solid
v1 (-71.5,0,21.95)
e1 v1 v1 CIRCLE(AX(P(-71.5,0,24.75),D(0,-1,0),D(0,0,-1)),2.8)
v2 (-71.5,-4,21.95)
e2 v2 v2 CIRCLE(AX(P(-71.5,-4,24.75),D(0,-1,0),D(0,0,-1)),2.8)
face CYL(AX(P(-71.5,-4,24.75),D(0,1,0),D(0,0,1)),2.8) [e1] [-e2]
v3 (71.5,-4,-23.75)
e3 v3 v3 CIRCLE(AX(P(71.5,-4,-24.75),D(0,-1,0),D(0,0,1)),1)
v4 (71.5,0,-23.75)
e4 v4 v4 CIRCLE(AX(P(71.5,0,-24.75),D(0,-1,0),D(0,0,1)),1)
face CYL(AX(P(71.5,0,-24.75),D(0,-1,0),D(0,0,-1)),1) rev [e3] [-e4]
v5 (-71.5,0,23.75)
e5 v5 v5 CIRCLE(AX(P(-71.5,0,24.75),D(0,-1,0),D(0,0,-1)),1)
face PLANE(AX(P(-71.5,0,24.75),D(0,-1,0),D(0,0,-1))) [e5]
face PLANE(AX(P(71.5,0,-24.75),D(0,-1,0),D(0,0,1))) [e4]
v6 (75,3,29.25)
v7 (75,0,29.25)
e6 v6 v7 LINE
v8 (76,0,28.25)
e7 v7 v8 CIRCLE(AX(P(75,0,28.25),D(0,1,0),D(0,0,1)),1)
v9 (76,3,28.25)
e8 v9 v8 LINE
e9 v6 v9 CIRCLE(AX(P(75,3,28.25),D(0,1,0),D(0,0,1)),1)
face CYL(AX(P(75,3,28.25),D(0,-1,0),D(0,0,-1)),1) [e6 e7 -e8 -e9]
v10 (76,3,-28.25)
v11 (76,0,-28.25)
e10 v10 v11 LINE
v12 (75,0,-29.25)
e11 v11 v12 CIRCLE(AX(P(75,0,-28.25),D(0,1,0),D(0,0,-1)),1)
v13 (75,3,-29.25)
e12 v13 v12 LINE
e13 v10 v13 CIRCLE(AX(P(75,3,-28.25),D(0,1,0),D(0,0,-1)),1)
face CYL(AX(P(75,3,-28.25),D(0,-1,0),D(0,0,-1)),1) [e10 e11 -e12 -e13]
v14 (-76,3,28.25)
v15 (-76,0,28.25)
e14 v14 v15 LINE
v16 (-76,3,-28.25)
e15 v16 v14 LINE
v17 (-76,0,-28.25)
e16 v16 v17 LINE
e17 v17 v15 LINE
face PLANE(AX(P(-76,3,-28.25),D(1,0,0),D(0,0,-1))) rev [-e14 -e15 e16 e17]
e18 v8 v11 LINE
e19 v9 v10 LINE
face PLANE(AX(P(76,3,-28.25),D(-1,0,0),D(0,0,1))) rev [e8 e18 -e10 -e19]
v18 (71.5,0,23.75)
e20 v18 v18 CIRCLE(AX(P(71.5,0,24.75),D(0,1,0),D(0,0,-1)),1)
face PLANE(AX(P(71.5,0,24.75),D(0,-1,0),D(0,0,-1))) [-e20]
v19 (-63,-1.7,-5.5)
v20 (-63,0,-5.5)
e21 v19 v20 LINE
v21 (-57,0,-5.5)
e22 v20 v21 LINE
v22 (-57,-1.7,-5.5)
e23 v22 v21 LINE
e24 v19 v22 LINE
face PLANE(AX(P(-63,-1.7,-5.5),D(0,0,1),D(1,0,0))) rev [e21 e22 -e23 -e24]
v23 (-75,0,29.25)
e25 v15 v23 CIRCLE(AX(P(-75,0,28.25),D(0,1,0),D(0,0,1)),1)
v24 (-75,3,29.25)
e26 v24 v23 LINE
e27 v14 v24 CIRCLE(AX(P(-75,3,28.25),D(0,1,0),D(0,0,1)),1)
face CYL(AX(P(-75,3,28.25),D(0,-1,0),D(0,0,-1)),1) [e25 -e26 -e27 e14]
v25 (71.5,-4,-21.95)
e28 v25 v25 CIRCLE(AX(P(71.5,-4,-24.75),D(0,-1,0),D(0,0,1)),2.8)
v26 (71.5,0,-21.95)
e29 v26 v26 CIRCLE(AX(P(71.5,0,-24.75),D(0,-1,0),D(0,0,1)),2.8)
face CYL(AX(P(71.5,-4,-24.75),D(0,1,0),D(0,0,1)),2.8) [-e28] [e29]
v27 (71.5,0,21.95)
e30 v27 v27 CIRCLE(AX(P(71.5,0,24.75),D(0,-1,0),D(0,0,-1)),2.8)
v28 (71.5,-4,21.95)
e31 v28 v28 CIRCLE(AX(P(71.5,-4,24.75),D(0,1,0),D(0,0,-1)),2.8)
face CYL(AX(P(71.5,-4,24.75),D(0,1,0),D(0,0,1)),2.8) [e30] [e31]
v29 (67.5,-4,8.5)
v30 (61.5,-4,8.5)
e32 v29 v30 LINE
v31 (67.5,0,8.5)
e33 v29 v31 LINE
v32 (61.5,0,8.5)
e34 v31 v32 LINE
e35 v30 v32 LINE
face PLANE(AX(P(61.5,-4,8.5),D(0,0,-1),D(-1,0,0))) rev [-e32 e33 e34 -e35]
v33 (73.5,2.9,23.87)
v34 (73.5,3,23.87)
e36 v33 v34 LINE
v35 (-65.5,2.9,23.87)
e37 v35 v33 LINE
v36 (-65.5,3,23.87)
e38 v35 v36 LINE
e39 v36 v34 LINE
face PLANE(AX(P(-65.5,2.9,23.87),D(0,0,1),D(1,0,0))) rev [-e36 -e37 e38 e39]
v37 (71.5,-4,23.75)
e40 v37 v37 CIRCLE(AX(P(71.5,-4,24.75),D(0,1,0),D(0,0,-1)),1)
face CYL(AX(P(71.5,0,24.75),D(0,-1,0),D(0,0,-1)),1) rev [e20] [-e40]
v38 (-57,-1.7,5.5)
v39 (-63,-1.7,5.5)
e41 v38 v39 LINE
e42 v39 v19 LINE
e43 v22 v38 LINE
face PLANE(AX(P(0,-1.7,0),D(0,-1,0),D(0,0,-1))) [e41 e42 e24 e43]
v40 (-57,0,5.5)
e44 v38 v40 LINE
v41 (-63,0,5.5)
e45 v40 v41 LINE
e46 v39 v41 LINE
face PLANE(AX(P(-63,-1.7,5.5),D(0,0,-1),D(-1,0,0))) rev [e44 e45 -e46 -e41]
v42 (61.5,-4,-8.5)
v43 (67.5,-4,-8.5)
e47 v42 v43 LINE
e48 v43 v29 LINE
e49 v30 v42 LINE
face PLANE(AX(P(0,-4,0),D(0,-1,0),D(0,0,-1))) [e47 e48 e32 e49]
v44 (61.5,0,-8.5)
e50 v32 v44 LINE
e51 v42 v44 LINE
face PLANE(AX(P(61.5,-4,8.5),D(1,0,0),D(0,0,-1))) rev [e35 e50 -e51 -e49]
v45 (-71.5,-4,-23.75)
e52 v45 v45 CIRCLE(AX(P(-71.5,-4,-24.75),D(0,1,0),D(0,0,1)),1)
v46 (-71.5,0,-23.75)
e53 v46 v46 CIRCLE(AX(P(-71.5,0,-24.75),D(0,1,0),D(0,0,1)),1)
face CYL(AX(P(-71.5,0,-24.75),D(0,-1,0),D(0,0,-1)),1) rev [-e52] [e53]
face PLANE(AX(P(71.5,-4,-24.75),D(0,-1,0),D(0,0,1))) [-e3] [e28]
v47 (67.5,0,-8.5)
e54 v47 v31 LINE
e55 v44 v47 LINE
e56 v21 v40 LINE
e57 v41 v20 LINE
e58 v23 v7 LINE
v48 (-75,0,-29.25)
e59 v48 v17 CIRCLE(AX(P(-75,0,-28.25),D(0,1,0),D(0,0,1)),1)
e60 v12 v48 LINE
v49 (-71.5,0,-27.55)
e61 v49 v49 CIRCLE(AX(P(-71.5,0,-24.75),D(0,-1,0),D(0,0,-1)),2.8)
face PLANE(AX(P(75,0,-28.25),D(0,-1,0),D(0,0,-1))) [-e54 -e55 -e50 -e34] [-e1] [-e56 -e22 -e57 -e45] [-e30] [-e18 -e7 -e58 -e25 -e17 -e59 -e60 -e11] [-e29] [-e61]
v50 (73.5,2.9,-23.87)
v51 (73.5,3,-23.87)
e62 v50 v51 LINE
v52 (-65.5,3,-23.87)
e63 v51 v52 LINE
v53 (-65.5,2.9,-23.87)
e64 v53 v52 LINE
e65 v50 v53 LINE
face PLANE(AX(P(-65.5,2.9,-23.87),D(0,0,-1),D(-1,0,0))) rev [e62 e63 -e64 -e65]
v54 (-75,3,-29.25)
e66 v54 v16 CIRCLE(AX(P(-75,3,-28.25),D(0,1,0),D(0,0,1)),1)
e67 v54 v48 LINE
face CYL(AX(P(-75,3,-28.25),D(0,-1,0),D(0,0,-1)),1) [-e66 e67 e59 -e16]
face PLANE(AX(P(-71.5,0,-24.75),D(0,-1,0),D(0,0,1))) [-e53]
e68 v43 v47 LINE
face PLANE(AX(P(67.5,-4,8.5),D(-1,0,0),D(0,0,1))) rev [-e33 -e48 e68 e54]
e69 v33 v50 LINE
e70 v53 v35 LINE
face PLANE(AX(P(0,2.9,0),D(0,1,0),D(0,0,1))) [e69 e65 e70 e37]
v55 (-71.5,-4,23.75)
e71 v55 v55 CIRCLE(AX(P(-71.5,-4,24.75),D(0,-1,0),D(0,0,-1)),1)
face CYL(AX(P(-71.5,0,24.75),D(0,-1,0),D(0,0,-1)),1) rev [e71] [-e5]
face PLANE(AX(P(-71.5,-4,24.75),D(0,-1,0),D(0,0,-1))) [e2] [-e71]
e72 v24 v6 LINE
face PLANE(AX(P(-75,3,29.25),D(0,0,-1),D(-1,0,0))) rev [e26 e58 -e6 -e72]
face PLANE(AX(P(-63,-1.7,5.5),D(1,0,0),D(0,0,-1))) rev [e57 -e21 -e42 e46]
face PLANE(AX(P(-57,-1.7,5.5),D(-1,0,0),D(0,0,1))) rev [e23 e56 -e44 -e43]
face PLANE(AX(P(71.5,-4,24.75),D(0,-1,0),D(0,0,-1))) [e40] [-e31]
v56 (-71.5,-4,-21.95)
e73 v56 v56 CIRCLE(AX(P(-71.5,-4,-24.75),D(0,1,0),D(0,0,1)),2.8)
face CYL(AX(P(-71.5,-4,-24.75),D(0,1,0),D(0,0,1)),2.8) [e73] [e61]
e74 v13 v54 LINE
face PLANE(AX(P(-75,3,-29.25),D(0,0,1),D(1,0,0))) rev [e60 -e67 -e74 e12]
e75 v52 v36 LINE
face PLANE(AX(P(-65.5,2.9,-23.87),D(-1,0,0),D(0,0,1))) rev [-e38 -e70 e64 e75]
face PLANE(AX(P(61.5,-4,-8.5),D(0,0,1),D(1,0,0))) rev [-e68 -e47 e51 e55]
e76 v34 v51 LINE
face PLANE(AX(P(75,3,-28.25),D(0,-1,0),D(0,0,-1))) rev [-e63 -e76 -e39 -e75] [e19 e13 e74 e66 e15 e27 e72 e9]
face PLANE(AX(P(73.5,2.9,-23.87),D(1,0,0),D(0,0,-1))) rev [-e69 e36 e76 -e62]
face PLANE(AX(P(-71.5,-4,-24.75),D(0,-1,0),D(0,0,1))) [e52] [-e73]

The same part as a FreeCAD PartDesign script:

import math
import FreeCAD as App
import Part
import Sketcher
from FreeCAD import Vector


def add_polygon(sketch, points):
    """Adds a closed chain of lines whose ends are joined by coincident constraints."""
    first, n = sketch.GeometryCount, len(points)
    for a, b in zip(points, points[1:] + points[:1]):
        sketch.addGeometry(Part.LineSegment(App.Vector(*a, 0), App.Vector(*b, 0)), False)
    for i in range(n):
        sketch.addConstraint(Sketcher.Constraint("Coincident", first + i, 2, first + (i + 1) % n, 1))

doc = App.newDocument("Part")
params = doc.addObject("Spreadsheet::Sheet", "Params")
for row, (alias, value) in enumerate([
    ("sketch1_radius", "1 mm"),
    ("sketch1_width", "150 mm"),
    ("sketch1_height", "56.5 mm"),
    ("pad1_length", "3 mm"),
    ("sketch2_width", "139 mm"),
    ("sketch2_height", "47.74 mm"),
    ("pocket1_length", "0.1 mm"),
    ("sketch3_diameter", "5.6 mm"),
    ("pad2_length", "4 mm"),
    ("sketch4_diameter", "2 mm"),
    ("pocket2_length", "4 mm"),
    ("sketch5_diameter", "5.6 mm"),
    ("pad3_length", "4 mm"),
    ("sketch6_diameter", "2 mm"),
    ("pocket3_length", "4 mm"),
    ("sketch7_width", "6 mm"),
    ("sketch7_height", "11 mm"),
    ("pad4_length", "1.7 mm"),
    ("sketch8_width", "6 mm"),
    ("sketch8_height", "17 mm"),
    ("pad5_length", "4 mm"),
], start=1):
    params.set(f"A{row}", alias)
    params.set(f"B{row}", "=" + value)
    params.setAlias(f"B{row}", alias)

body = doc.addObject("PartDesign::Body", "Body")

# Sketch on XZ plane
sketch1 = body.newObject("Sketcher::SketchObject", "Sketch")
sketch1.AttachmentSupport = (doc.getObject("XZ_Plane"), [""])
sketch1.MapMode = "FlatFace"
sketch1.addGeometry(Part.LineSegment(Vector(75, -29.2, 0), Vector(-75, -29.2, 0)), False)
sketch1.addGeometry(Part.ArcOfCircle(Part.Circle(Vector(-75, -28.2, 0), Vector(0, 0, 1), 1), math.radians(-180), math.radians(-90)), False)
sketch1.addGeometry(Part.LineSegment(Vector(-76, -28.2, 0), Vector(-76, 28.2, 0)), False)
sketch1.addGeometry(Part.ArcOfCircle(Part.Circle(Vector(-75, 28.2, 0), Vector(0, 0, 1), 1), math.radians(90), math.radians(180)), False)
sketch1.addGeometry(Part.LineSegment(Vector(-75, 29.2, 0), Vector(75, 29.2, 0)), False)
sketch1.addGeometry(Part.ArcOfCircle(Part.Circle(Vector(75, 28.2, 0), Vector(0, 0, 1), 1), math.radians(0), math.radians(90)), False)
sketch1.addGeometry(Part.LineSegment(Vector(76, 28.2, 0), Vector(76, -28.2, 0)), False)
sketch1.addGeometry(Part.ArcOfCircle(Part.Circle(Vector(75, -28.2, 0), Vector(0, 0, 1), 1), math.radians(-90), math.radians(0)), False)
sketch1.addConstraint(Sketcher.Constraint("Tangent", 0, 2, 1, 2))
sketch1.addConstraint(Sketcher.Constraint("Tangent", 1, 1, 2, 1))
sketch1.addConstraint(Sketcher.Constraint("Tangent", 2, 2, 3, 2))
sketch1.addConstraint(Sketcher.Constraint("Tangent", 3, 1, 4, 1))
sketch1.addConstraint(Sketcher.Constraint("Tangent", 4, 2, 5, 2))
sketch1.addConstraint(Sketcher.Constraint("Tangent", 5, 1, 6, 1))
sketch1.addConstraint(Sketcher.Constraint("Tangent", 6, 2, 7, 2))
sketch1.addConstraint(Sketcher.Constraint("Tangent", 7, 1, 0, 1))
sketch1.addConstraint(Sketcher.Constraint("Horizontal", 0))
sketch1.addConstraint(Sketcher.Constraint("Vertical", 2))
sketch1.addConstraint(Sketcher.Constraint("Horizontal", 4))
sketch1.addConstraint(Sketcher.Constraint("Vertical", 6))
sketch1.addConstraint(Sketcher.Constraint("Equal", 1, 3))
sketch1.addConstraint(Sketcher.Constraint("Equal", 3, 5))
sketch1.addConstraint(Sketcher.Constraint("Equal", 5, 7))
sketch1.addConstraint(Sketcher.Constraint("Symmetric", 1, 3, 5, 3, -1, 1))
sketch1.addConstraint(Sketcher.Constraint("Radius", 1, 1.0))
sketch1.addConstraint(Sketcher.Constraint("DistanceX", 0, 2, 0, 1, 150.0))
sketch1.addConstraint(Sketcher.Constraint("DistanceY", 2, 1, 2, 2, 56.5))
sketch1.setExpression("Constraints[16]", "Params.sketch1_radius")
sketch1.setExpression("Constraints[17]", "Params.sketch1_width")
sketch1.setExpression("Constraints[18]", "Params.sketch1_height")
pad1 = body.newObject("PartDesign::Pad", "Pad")
pad1.Profile = sketch1
pad1.setExpression("Length", "Params.pad1_length")
pad1.Reversed = True

# Sketch on XZ plane
sketch2 = body.newObject("Sketcher::SketchObject", "Sketch001")
sketch2.AttachmentSupport = (doc.getObject("XZ_Plane"), [""])
sketch2.MapMode = "FlatFace"
sketch2.AttachmentOffset = App.Placement(Vector(0, 0, -3), App.Rotation())
add_polygon(sketch2, [(-66, -24), (-66, 24), (74, 24), (74, -24)])  # lines 0-3
sketch2.addConstraint(Sketcher.Constraint("Vertical", 0))
sketch2.addConstraint(Sketcher.Constraint("Horizontal", 1))
sketch2.addConstraint(Sketcher.Constraint("Vertical", 2))
sketch2.addConstraint(Sketcher.Constraint("Horizontal", 3))
sketch2.addConstraint(Sketcher.Constraint("DistanceX", 1, 1, 1, 2, 139.0))
sketch2.addConstraint(Sketcher.Constraint("DistanceY", 0, 1, 0, 2, 47.74))
sketch2.addConstraint(Sketcher.Constraint("DistanceX", 0, 2, -1, 1, 65.5))
sketch2.addConstraint(Sketcher.Constraint("DistanceY", -1, 1, 0, 2, 23.87))
sketch2.setExpression("Constraints[8]", "Params.sketch2_width")
sketch2.setExpression("Constraints[9]", "Params.sketch2_height")
pocket1 = body.newObject("PartDesign::Pocket", "Pocket")
pocket1.Profile = sketch2
pocket1.setExpression("Length", "Params.pocket1_length")
pocket1.Reversed = True

# Sketch on XZ plane
sketch3 = body.newObject("Sketcher::SketchObject", "Sketch002")
sketch3.AttachmentSupport = (doc.getObject("XZ_Plane"), [""])
sketch3.MapMode = "FlatFace"
sketch3.addGeometry(Part.Circle(Vector(-71.5, 24.8, 0), Vector(0, 0, 1), 2.8), False)
sketch3.addConstraint(Sketcher.Constraint("Diameter", 0, 5.6))
sketch3.addConstraint(Sketcher.Constraint("DistanceX", 0, 3, -1, 1, 71.5))
sketch3.addConstraint(Sketcher.Constraint("DistanceY", -1, 1, 0, 3, 24.75))
sketch3.setExpression("Constraints[0]", "Params.sketch3_diameter")
pad2 = body.newObject("PartDesign::Pad", "Pad001")
pad2.Profile = sketch3
pad2.setExpression("Length", "Params.pad2_length")

# Sketch on XZ plane
sketch4 = body.newObject("Sketcher::SketchObject", "Sketch003")
sketch4.AttachmentSupport = (doc.getObject("XZ_Plane"), [""])
sketch4.MapMode = "FlatFace"
sketch4.AttachmentOffset = App.Placement(Vector(0, 0, 4), App.Rotation())
sketch4.addGeometry(Part.Circle(Vector(-71.5, 24.8, 0), Vector(0, 0, 1), 1), False)
sketch4.addConstraint(Sketcher.Constraint("Diameter", 0, 2.0))
sketch4.addConstraint(Sketcher.Constraint("DistanceX", 0, 3, -1, 1, 71.5))
sketch4.addConstraint(Sketcher.Constraint("DistanceY", -1, 1, 0, 3, 24.75))
sketch4.setExpression("Constraints[0]", "Params.sketch4_diameter")
pocket2 = body.newObject("PartDesign::Pocket", "Pocket001")
pocket2.Profile = sketch4
pocket2.setExpression("Length", "Params.pocket2_length")
doc.recompute()

mirrored = body.newObject("PartDesign::Mirrored", "Mirrored")
mirrored.Originals = [pad2, pocket2]
mirrored.MirrorPlane = (doc.getObject("YZ_Plane"), [""])
body.Tip = mirrored
doc.recompute()

mirrored2 = body.newObject("PartDesign::Mirrored", "Mirrored001")
mirrored2.Originals = [pad2, pocket2]
mirrored2.MirrorPlane = (doc.getObject("XY_Plane"), [""])
body.Tip = mirrored2

# Sketch on XZ plane
sketch5 = body.newObject("Sketcher::SketchObject", "Sketch004")
sketch5.AttachmentSupport = (doc.getObject("XZ_Plane"), [""])
sketch5.MapMode = "FlatFace"
sketch5.addGeometry(Part.Circle(Vector(71.5, -24.8, 0), Vector(0, 0, 1), 2.8), False)
sketch5.addConstraint(Sketcher.Constraint("Diameter", 0, 5.6))
sketch5.addConstraint(Sketcher.Constraint("DistanceX", -1, 1, 0, 3, 71.5))
sketch5.addConstraint(Sketcher.Constraint("DistanceY", 0, 3, -1, 1, 24.75))
sketch5.setExpression("Constraints[0]", "Params.sketch5_diameter")
pad3 = body.newObject("PartDesign::Pad", "Pad002")
pad3.Profile = sketch5
pad3.setExpression("Length", "Params.pad3_length")

# Sketch on XZ plane
sketch6 = body.newObject("Sketcher::SketchObject", "Sketch005")
sketch6.AttachmentSupport = (doc.getObject("XZ_Plane"), [""])
sketch6.MapMode = "FlatFace"
sketch6.AttachmentOffset = App.Placement(Vector(0, 0, 4), App.Rotation())
sketch6.addGeometry(Part.Circle(Vector(71.5, -24.8, 0), Vector(0, 0, 1), 1), False)
sketch6.addConstraint(Sketcher.Constraint("Diameter", 0, 2.0))
sketch6.addConstraint(Sketcher.Constraint("DistanceX", -1, 1, 0, 3, 71.5))
sketch6.addConstraint(Sketcher.Constraint("DistanceY", 0, 3, -1, 1, 24.75))
sketch6.setExpression("Constraints[0]", "Params.sketch6_diameter")
pocket3 = body.newObject("PartDesign::Pocket", "Pocket002")
pocket3.Profile = sketch6
pocket3.setExpression("Length", "Params.pocket3_length")

# Sketch on XZ plane
sketch7 = body.newObject("Sketcher::SketchObject", "Sketch006")
sketch7.AttachmentSupport = (doc.getObject("XZ_Plane"), [""])
sketch7.MapMode = "FlatFace"
add_polygon(sketch7, [(-63, 6), (-63, -6), (-57, -6), (-57, 6)])  # lines 0-3
sketch7.addConstraint(Sketcher.Constraint("Vertical", 0))
sketch7.addConstraint(Sketcher.Constraint("Horizontal", 1))
sketch7.addConstraint(Sketcher.Constraint("Vertical", 2))
sketch7.addConstraint(Sketcher.Constraint("Horizontal", 3))
sketch7.addConstraint(Sketcher.Constraint("DistanceX", 1, 1, 1, 2, 6.0))
sketch7.addConstraint(Sketcher.Constraint("DistanceY", 0, 2, 0, 1, 11.0))
sketch7.addConstraint(Sketcher.Constraint("DistanceX", 0, 2, -1, 1, 63.0))
sketch7.addConstraint(Sketcher.Constraint("DistanceY", 0, 2, -1, 1, 5.5))
sketch7.setExpression("Constraints[8]", "Params.sketch7_width")
sketch7.setExpression("Constraints[9]", "Params.sketch7_height")
pad4 = body.newObject("PartDesign::Pad", "Pad003")
pad4.Profile = sketch7
pad4.setExpression("Length", "Params.pad4_length")

# Sketch on XZ plane
sketch8 = body.newObject("Sketcher::SketchObject", "Sketch007")
sketch8.AttachmentSupport = (doc.getObject("XZ_Plane"), [""])
sketch8.MapMode = "FlatFace"
add_polygon(sketch8, [(62, 8), (62, -8), (68, -8), (68, 8)])  # lines 0-3
sketch8.addConstraint(Sketcher.Constraint("Vertical", 0))
sketch8.addConstraint(Sketcher.Constraint("Horizontal", 1))
sketch8.addConstraint(Sketcher.Constraint("Vertical", 2))
sketch8.addConstraint(Sketcher.Constraint("Horizontal", 3))
sketch8.addConstraint(Sketcher.Constraint("DistanceX", 1, 1, 1, 2, 6.0))
sketch8.addConstraint(Sketcher.Constraint("DistanceY", 0, 2, 0, 1, 17.0))
sketch8.addConstraint(Sketcher.Constraint("DistanceX", -1, 1, 0, 2, 61.5))
sketch8.addConstraint(Sketcher.Constraint("DistanceY", 0, 2, -1, 1, 8.5))
sketch8.setExpression("Constraints[8]", "Params.sketch8_width")
sketch8.setExpression("Constraints[9]", "Params.sketch8_height")
pad5 = body.newObject("PartDesign::Pad", "Pad004")
pad5.Profile = sketch8
pad5.setExpression("Length", "Params.pad5_length")

doc.recompute()
